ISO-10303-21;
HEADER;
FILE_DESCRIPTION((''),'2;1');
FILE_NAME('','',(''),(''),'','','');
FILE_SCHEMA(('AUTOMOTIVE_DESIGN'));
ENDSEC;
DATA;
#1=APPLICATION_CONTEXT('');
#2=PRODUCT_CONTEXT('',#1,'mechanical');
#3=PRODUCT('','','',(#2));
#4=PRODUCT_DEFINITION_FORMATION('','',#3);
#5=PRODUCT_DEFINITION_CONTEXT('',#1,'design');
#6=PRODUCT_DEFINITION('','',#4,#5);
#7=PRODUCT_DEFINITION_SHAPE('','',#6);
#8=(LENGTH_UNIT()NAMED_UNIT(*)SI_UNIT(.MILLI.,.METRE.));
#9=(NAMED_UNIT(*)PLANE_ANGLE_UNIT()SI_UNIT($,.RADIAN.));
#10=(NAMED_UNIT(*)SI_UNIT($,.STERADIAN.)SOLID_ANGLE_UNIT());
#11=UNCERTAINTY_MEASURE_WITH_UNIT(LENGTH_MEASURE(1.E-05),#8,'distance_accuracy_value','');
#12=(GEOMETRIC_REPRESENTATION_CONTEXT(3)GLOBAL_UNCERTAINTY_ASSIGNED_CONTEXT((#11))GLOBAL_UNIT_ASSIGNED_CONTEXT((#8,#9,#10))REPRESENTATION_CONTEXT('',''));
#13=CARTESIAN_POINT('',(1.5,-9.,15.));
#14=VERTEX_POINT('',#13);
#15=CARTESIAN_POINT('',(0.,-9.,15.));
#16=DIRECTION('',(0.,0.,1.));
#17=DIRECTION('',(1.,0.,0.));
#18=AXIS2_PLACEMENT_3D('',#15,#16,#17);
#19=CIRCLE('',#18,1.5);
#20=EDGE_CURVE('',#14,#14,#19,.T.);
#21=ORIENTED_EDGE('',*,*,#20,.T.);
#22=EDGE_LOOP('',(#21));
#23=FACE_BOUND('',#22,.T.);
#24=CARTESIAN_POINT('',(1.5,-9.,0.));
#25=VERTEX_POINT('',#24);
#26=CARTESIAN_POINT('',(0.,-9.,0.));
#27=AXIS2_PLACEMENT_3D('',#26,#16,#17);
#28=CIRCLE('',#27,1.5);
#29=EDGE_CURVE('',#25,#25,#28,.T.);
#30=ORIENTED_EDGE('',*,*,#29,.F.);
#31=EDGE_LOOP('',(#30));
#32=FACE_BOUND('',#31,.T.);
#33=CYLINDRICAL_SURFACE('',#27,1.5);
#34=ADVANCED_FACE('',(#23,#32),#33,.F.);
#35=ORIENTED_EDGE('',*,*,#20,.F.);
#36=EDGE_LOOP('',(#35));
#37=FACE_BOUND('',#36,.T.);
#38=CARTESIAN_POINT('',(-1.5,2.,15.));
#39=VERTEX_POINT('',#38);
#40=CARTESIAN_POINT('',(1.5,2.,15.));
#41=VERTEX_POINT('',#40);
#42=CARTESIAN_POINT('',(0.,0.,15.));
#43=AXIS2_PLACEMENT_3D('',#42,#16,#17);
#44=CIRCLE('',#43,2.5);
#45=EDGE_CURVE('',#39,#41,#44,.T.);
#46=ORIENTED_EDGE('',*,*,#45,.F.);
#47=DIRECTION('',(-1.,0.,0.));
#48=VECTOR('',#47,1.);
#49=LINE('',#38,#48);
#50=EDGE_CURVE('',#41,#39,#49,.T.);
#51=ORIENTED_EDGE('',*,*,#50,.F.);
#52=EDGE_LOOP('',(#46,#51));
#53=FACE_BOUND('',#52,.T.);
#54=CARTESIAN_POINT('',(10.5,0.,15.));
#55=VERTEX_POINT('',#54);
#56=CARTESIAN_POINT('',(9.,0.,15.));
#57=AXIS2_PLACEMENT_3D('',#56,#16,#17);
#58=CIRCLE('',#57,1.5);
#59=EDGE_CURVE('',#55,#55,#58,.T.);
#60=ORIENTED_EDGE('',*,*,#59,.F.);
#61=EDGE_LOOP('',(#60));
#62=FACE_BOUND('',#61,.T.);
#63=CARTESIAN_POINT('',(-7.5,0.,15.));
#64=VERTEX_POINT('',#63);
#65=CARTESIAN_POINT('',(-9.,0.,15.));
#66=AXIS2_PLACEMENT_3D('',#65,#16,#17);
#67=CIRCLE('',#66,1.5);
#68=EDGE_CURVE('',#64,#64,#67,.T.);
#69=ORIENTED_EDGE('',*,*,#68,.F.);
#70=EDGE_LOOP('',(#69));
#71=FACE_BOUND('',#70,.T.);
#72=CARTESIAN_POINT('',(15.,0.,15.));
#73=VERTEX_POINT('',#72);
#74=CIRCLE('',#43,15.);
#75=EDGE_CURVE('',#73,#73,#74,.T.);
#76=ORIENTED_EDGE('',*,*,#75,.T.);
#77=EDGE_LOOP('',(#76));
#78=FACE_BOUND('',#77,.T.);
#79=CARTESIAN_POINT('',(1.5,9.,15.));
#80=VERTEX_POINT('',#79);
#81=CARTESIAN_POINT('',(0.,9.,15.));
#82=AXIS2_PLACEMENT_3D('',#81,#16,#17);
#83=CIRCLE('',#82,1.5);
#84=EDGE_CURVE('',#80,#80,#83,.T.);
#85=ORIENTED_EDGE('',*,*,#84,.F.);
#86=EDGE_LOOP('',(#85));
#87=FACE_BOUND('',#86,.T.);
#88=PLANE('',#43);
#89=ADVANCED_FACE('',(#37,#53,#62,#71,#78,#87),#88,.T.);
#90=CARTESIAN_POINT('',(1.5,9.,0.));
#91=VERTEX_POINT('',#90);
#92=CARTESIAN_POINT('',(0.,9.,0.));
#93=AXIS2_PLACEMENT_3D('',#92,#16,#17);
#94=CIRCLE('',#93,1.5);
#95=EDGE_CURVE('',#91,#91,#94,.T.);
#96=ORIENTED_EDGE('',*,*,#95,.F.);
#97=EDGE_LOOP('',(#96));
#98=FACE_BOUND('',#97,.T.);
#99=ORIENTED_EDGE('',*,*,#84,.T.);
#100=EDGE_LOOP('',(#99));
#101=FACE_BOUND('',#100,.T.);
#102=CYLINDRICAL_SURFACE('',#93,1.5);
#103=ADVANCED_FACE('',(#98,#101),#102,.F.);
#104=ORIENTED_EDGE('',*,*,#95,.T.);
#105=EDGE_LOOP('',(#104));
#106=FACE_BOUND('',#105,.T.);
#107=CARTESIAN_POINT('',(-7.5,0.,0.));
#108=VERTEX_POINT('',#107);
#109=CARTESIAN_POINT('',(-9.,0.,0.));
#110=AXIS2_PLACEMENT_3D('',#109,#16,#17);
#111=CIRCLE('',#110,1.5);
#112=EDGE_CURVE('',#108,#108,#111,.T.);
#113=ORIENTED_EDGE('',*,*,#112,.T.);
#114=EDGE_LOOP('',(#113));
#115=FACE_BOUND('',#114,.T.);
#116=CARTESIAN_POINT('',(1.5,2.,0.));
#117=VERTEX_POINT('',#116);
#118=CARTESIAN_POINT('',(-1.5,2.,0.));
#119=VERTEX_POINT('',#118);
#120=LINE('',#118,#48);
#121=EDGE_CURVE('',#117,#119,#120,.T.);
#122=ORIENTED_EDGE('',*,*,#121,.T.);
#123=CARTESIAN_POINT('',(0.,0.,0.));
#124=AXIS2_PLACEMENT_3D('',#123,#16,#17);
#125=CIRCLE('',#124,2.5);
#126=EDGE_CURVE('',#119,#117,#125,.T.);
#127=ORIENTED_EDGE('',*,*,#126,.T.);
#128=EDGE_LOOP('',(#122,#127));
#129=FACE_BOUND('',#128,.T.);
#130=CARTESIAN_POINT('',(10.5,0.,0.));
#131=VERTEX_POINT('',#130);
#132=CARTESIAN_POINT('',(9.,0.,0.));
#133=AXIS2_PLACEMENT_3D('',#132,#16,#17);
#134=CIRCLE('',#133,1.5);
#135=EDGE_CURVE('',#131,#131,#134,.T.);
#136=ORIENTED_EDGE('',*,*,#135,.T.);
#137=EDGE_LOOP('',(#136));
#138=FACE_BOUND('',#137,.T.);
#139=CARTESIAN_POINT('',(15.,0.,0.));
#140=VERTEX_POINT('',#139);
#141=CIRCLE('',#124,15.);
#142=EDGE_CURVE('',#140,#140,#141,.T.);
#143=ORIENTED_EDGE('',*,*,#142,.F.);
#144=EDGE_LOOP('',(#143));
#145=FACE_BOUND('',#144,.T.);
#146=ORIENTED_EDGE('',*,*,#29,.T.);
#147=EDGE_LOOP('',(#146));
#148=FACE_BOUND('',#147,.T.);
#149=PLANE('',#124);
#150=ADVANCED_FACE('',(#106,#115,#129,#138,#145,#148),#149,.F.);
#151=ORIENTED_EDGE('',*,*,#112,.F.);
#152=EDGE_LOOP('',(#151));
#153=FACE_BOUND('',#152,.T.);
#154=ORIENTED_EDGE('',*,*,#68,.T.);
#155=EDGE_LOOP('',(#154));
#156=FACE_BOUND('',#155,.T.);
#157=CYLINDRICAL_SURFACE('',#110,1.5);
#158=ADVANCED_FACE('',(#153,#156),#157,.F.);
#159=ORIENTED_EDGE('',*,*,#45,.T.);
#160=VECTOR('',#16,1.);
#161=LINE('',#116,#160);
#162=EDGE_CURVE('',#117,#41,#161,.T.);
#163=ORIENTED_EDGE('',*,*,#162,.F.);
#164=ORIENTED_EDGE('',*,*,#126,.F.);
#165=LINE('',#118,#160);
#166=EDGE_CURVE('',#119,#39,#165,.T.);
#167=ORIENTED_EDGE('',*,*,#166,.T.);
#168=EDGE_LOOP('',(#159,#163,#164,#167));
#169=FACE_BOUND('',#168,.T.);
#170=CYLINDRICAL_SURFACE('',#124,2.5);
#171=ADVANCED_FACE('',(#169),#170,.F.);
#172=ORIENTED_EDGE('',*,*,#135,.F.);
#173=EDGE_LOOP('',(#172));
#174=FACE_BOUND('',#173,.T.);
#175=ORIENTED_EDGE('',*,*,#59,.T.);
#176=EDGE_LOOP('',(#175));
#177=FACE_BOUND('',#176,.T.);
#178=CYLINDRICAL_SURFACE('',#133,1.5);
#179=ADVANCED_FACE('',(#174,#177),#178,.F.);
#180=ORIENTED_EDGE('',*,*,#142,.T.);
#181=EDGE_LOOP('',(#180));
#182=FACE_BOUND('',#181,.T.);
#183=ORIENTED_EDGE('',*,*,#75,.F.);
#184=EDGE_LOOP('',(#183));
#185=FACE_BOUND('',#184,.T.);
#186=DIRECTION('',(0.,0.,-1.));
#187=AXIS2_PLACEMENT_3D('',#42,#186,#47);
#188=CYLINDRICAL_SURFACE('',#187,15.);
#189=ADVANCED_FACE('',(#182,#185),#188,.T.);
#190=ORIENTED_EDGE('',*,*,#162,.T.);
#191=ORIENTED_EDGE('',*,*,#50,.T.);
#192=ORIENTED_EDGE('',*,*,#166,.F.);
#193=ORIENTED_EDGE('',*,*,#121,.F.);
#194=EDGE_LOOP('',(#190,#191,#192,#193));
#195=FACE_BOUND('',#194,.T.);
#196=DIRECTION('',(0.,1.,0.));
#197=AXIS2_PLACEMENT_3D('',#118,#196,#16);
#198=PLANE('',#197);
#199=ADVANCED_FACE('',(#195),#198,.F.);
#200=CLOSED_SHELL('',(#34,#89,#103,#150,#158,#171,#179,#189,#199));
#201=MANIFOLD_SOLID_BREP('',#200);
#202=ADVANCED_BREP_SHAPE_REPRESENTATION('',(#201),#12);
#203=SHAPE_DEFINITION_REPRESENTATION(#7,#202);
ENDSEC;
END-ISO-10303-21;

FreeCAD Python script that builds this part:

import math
import FreeCAD as App
import Part
import Sketcher

V = App.Vector
Q = App.Units.Quantity

doc = App.newDocument("Part")
body = doc.addObject("PartDesign::Body", "Body")

sketch1 = body.newObject("Sketcher::SketchObject", "Sketch")
sketch1.AttachmentSupport = (doc.getObject("XY_Plane"), [""])
sketch1.MapMode = "FlatFace"
sketch1.addGeometry(Part.Circle(V(0, 0, 0), V(0, 0, 1), 15), False)
sketch1.addConstraint([
    Sketcher.Constraint("Coincident", 0, 3, -1, 1),
    Sketcher.Constraint("Diameter", 0, Q("30 mm")),
])
pad1 = body.newObject("PartDesign::Pad", "Pad")
pad1.Profile = sketch1
pad1.Length = 15

sketch2 = body.newObject("Sketcher::SketchObject", "Sketch001")
sketch2.AttachmentSupport = (doc.getObject("XY_Plane"), [""])
sketch2.MapMode = "FlatFace"
sketch2.AttachmentOffset = App.Placement(V(0, 0, 15), App.Rotation())
sketch2.addGeometry([
    Part.LineSegment(V(1.5, 2, 0), V(-1.5, 2, 0)),
    Part.ArcOfCircle(Part.Circle(V(0, 0, 0), V(0, 0, 1), 2.5), math.radians(127), math.radians(413)),
], False)
sketch2.addConstraint([
    Sketcher.Constraint("Coincident", 0, 1, 1, 2),
    Sketcher.Constraint("Coincident", 1, 1, 0, 2),
    Sketcher.Constraint("Horizontal", 0),
    Sketcher.Constraint("Coincident", 1, 3, -1, 1),
    Sketcher.Constraint("Radius", 1, Q("2.5 mm")),
    Sketcher.Constraint("DistanceX", 0, 2, 0, 1, Q("3 mm")),
])
pocket1 = body.newObject("PartDesign::Pocket", "Pocket")
pocket1.Profile = sketch2
pocket1.Length = 15

sketch3 = body.newObject("Sketcher::SketchObject", "Sketch002")
sketch3.AttachmentSupport = (doc.getObject("XY_Plane"), [""])
sketch3.MapMode = "FlatFace"
sketch3.AttachmentOffset = App.Placement(V(0, 0, 15), App.Rotation())
sketch3.addGeometry([
    Part.Circle(V(0, 9, 0), V(0, 0, 1), 1.5),
    Part.Circle(V(9, 0, 0), V(0, 0, 1), 1.5),
    Part.Circle(V(0, -9, 0), V(0, 0, 1), 1.5),
    Part.Circle(V(-9, 0, 0), V(0, 0, 1), 1.5),
], False)
sketch3.addConstraint([
    Sketcher.Constraint("Equal", 0, 1),
    Sketcher.Constraint("Equal", 1, 2),
    Sketcher.Constraint("Equal", 2, 3),
    Sketcher.Constraint("Symmetric", 0, 3, 2, 3, -1, 1),
    Sketcher.Constraint("Symmetric", 1, 3, 3, 3, -1, 1),
    Sketcher.Constraint("PointOnObject", 0, 3, -2),
    Sketcher.Constraint("PointOnObject", 1, 3, -1),
    Sketcher.Constraint("Diameter", 0, Q("3 mm")),
    Sketcher.Constraint("DistanceY", -1, 1, 0, 3, Q("9 mm")),
    Sketcher.Constraint("DistanceX", -1, 1, 1, 3, Q("9 mm")),
])
pocket2 = body.newObject("PartDesign::Pocket", "Pocket001")
pocket2.Profile = sketch3
pocket2.Length = 15

doc.recompute()
